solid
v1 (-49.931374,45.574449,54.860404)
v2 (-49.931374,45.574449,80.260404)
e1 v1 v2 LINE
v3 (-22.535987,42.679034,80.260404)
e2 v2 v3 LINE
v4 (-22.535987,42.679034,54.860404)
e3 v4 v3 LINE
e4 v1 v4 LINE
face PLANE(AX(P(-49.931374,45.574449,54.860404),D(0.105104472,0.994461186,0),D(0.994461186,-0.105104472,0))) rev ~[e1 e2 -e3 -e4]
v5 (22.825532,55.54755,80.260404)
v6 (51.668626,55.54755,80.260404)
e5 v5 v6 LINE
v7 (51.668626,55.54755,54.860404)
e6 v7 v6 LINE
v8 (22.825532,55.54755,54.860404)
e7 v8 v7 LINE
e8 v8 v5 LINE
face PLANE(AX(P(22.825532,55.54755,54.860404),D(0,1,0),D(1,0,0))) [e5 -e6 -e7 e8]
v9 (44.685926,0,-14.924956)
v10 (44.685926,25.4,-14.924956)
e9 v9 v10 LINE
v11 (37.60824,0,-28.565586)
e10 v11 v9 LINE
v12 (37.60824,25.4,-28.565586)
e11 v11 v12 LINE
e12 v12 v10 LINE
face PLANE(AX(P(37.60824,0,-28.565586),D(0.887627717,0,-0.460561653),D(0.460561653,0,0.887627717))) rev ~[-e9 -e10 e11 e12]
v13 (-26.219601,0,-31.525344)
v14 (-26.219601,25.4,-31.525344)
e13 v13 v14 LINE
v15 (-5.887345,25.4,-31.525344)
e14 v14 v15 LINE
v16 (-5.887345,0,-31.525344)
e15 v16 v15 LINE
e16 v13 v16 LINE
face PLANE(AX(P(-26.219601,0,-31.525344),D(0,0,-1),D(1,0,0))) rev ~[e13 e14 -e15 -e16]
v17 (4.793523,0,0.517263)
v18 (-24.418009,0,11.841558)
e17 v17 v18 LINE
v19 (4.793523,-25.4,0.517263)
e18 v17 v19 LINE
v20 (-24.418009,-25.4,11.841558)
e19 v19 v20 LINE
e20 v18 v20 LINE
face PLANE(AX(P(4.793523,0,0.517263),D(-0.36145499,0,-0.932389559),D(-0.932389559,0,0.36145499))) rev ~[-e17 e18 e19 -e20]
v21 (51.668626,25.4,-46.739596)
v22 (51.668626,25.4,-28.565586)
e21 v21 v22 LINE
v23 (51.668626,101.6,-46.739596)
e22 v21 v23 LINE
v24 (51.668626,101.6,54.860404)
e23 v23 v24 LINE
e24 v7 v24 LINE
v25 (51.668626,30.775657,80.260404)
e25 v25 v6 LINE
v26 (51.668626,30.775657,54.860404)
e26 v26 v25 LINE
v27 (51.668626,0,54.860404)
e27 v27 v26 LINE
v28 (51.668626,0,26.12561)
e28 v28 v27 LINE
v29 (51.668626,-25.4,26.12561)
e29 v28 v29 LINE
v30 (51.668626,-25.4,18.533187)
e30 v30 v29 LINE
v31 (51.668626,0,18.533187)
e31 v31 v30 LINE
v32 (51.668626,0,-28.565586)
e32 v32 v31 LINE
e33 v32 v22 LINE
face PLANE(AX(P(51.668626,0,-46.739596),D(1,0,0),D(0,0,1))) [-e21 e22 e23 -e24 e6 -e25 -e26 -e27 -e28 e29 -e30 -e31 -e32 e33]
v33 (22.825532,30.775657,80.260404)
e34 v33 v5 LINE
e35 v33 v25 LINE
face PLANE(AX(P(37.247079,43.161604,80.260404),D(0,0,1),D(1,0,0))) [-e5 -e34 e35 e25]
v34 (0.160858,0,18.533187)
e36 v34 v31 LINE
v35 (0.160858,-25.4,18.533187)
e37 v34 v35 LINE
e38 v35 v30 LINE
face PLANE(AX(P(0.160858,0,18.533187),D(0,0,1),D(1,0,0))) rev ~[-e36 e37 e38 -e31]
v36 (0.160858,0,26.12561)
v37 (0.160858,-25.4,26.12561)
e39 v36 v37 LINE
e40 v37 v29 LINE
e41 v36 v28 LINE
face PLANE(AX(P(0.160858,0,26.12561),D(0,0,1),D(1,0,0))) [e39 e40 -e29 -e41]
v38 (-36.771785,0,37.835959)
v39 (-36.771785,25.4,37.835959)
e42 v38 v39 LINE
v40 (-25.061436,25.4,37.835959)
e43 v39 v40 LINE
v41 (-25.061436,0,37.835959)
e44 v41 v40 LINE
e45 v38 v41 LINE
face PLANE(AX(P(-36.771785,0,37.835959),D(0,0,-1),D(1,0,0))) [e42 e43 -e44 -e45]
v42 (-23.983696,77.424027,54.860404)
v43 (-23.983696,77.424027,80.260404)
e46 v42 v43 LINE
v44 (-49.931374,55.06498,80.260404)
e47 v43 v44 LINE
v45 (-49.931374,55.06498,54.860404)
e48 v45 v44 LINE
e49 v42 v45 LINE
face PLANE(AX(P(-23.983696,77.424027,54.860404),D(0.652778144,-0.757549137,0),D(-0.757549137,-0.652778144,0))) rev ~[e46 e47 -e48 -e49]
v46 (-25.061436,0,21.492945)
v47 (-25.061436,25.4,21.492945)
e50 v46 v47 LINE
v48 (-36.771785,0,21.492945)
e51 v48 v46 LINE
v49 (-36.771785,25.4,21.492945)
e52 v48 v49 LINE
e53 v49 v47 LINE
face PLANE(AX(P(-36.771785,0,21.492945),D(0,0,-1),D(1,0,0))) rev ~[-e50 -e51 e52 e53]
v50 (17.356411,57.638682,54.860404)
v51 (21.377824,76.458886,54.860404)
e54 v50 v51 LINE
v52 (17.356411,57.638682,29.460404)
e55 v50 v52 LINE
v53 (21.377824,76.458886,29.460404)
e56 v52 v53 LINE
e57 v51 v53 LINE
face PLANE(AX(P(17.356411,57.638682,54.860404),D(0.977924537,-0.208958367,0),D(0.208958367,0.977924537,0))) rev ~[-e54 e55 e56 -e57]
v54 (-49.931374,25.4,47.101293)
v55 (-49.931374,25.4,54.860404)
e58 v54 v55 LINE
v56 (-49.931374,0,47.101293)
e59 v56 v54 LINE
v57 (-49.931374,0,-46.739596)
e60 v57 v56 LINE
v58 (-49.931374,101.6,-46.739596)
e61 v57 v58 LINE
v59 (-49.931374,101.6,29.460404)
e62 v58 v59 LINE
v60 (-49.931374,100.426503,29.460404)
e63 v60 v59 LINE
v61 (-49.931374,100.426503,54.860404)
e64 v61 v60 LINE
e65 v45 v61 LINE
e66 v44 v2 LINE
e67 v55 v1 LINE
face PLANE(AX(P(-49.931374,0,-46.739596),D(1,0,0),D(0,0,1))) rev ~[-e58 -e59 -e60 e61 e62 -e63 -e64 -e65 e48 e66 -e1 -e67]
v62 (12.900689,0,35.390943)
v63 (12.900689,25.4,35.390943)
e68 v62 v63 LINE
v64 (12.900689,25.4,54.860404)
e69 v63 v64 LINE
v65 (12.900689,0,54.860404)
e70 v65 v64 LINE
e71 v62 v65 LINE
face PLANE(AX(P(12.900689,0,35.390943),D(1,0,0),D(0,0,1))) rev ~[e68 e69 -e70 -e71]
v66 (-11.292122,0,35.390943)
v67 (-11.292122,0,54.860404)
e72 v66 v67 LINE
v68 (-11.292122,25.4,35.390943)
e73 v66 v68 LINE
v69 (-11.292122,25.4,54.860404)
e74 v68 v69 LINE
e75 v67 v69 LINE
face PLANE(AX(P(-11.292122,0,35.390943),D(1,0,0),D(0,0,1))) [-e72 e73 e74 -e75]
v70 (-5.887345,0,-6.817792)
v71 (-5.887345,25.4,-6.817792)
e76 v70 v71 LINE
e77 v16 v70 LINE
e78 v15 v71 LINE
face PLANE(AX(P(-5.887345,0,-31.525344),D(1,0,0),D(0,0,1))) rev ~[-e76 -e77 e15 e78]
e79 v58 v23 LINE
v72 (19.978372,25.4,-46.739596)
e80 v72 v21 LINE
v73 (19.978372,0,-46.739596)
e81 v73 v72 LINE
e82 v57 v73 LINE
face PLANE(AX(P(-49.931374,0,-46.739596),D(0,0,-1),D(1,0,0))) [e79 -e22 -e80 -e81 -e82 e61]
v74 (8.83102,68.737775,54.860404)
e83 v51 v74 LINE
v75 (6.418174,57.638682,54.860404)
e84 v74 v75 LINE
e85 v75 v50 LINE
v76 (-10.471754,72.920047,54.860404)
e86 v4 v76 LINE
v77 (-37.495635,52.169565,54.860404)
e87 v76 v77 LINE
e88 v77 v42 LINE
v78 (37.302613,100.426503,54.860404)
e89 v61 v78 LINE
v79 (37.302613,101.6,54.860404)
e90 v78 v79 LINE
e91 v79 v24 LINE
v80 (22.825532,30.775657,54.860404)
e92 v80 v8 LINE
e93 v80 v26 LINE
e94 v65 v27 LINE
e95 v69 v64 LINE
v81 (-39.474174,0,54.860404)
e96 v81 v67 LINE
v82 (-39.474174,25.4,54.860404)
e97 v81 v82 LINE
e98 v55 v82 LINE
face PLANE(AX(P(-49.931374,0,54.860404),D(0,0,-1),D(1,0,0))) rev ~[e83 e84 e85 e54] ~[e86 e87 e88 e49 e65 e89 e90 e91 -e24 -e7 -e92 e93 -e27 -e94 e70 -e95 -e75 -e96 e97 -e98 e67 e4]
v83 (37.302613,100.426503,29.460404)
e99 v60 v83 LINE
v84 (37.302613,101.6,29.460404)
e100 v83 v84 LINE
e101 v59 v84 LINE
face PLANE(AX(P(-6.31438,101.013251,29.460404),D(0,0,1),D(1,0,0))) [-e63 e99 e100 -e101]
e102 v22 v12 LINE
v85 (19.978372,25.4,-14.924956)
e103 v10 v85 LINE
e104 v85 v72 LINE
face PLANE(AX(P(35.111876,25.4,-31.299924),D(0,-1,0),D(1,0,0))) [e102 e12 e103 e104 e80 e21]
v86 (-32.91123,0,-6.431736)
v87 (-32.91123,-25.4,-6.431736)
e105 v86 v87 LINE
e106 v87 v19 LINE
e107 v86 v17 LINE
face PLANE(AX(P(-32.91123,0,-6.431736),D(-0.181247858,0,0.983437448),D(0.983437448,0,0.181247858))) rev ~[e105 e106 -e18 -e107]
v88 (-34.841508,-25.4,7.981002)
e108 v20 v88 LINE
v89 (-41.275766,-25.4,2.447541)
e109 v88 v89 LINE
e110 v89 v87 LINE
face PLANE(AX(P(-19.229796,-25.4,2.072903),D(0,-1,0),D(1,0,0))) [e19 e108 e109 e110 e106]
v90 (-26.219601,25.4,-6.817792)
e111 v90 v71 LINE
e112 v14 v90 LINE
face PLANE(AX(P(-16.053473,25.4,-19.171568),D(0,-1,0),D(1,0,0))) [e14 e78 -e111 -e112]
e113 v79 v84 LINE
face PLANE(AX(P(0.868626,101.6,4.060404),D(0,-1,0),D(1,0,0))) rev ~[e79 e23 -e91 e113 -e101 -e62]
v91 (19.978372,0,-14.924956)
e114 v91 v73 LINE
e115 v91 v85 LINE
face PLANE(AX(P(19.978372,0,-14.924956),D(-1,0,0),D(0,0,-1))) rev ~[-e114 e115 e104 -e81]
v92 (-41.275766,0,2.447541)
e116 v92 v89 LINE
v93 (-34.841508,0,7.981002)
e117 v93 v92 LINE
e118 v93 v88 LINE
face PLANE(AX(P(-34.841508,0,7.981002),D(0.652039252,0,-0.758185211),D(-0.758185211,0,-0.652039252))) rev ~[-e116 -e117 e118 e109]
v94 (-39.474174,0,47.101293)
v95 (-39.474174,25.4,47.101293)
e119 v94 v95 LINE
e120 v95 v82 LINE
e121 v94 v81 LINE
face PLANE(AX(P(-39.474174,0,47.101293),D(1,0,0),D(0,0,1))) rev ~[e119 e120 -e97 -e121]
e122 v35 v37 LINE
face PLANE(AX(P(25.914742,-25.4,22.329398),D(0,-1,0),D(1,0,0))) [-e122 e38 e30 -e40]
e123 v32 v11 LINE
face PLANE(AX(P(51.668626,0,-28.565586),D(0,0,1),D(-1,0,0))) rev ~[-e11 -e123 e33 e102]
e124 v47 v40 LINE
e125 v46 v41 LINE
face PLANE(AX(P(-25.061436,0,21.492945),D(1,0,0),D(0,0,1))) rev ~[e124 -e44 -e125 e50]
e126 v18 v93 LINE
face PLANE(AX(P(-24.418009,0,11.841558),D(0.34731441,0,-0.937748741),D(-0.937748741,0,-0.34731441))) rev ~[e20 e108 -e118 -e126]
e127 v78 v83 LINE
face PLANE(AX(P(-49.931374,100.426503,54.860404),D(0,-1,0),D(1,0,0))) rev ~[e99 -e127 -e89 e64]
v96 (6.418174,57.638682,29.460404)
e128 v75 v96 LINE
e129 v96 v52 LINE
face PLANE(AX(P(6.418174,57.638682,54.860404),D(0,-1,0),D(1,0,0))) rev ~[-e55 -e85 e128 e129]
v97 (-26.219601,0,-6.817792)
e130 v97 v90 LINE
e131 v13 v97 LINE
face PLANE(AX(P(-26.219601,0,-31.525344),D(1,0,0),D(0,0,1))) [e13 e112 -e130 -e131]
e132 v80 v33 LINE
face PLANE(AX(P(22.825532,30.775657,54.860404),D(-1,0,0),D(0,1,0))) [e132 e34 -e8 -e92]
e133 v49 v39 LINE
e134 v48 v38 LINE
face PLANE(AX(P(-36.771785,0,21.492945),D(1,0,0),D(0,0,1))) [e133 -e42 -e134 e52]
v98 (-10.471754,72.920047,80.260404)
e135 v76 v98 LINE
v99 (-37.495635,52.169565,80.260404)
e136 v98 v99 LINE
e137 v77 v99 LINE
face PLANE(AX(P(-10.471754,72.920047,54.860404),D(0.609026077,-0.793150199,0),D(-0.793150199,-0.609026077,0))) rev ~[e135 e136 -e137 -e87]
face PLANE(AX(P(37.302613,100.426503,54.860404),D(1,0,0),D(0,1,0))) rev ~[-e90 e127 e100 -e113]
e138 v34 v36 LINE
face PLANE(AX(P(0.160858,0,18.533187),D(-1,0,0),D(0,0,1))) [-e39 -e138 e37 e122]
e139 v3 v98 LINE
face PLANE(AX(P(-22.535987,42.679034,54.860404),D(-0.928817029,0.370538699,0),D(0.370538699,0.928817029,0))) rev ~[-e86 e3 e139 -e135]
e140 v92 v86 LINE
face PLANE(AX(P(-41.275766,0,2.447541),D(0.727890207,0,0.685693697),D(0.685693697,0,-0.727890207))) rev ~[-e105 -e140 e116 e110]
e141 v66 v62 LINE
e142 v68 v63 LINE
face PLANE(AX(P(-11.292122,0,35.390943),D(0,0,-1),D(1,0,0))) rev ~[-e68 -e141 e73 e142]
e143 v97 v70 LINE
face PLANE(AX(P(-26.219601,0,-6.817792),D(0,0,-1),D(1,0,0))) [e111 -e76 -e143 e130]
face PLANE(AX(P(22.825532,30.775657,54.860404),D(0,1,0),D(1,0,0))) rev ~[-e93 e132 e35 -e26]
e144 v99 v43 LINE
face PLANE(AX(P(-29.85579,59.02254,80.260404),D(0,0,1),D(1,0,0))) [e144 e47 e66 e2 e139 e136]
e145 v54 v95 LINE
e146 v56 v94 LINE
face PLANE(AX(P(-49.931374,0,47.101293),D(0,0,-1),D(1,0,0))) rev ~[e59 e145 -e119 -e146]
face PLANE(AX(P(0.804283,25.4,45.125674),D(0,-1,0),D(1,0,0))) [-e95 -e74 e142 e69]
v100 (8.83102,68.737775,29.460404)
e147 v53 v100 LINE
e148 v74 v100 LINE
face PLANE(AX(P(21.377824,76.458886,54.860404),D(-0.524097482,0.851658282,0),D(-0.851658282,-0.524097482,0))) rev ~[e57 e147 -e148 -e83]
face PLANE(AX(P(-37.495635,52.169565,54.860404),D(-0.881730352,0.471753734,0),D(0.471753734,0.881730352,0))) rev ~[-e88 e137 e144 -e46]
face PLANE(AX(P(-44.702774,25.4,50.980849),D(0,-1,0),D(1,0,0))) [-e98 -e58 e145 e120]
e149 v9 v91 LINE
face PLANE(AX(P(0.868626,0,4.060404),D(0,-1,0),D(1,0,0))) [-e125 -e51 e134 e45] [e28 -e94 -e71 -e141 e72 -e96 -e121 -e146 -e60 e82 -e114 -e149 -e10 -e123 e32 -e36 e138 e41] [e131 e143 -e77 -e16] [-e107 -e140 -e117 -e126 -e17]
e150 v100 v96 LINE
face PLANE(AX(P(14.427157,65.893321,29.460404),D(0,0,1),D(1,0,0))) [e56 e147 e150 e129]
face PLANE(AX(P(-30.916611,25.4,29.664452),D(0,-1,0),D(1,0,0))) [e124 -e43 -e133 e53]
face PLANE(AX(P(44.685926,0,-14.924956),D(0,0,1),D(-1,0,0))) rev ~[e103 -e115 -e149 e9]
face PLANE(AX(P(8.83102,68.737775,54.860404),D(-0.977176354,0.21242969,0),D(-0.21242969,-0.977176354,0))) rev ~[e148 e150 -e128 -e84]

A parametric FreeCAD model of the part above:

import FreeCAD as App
import Part
import Sketcher
from FreeCAD import Vector
Q = App.Units.Quantity


def add_polygon(sketch, points):
    """Adds a closed chain of lines whose ends are joined by coincident constraints."""
    first, n = sketch.GeometryCount, len(points)
    for a, b in zip(points, points[1:] + points[:1]):
        sketch.addGeometry(Part.LineSegment(App.Vector(*a, 0), App.Vector(*b, 0)), False)
    for i in range(n):
        sketch.addConstraint(Sketcher.Constraint("Coincident", first + i, 2, first + (i + 1) % n, 1))

doc = App.newDocument("Part")
body = doc.addObject("PartDesign::Body", "Body")

# Sketch on XZ plane
sketch1 = body.newObject("Sketcher::SketchObject", "Sketch")
sketch1.AttachmentSupport = (doc.getObject("XZ_Plane"), [""])
sketch1.MapMode = "FlatFace"
add_polygon(sketch1, [(-50, 55), (-50, -47), (52, -47), (52, 55)])  # lines 0-3
sketch1.addConstraint([
    Sketcher.Constraint("Vertical", 0),
    Sketcher.Constraint("Horizontal", 1),
    Sketcher.Constraint("Vertical", 2),
    Sketcher.Constraint("Horizontal", 3),
    Sketcher.Constraint("Equal", 3, 0),
    Sketcher.Constraint("DistanceX", 1, 1, 1, 2, Q("4 in")),
    Sketcher.Constraint("DistanceX", 0, 2, -1, 1, Q("49.931374 mm")),
    Sketcher.Constraint("DistanceY", 0, 2, -1, 1, Q("46.739596 mm")),
])
pad1 = body.newObject("PartDesign::Pad", "Pad")
pad1.Profile = sketch1
pad1.Length = Q("4 in")
pad1.Reversed = True

# Sketch on XZ plane
sketch2 = body.newObject("Sketcher::SketchObject", "Sketch001")
sketch2.AttachmentSupport = (doc.getObject("XZ_Plane"), [""])
sketch2.MapMode = "FlatFace"
add_polygon(sketch2, [(-50, 55), (-50, 47), (-39, 47), (-39, 55)])  # lines 0-3
add_polygon(sketch2, [(-11, 55), (-11, 35), (13, 35), (13, 55)])  # lines 4-7
add_polygon(sketch2, [(-37, 38), (-37, 21), (-25, 21), (-25, 38)])  # lines 8-11
add_polygon(sketch2, [(-26, -7), (-26, -32), (-6, -32), (-6, -7)])  # lines 12-15
add_polygon(sketch2, [(20, -15), (20, -47), (52, -47), (52, -29), (38, -29), (45, -15)])  # lines 16-21
sketch2.addConstraint([
    Sketcher.Constraint("Vertical", 0),
    Sketcher.Constraint("Horizontal", 1),
    Sketcher.Constraint("Vertical", 2),
    Sketcher.Constraint("Horizontal", 3),
    Sketcher.Constraint("Vertical", 4),
    Sketcher.Constraint("Horizontal", 5),
    Sketcher.Constraint("Vertical", 6),
    Sketcher.Constraint("Horizontal", 7),
    Sketcher.Constraint("Vertical", 8),
    Sketcher.Constraint("Horizontal", 9),
    Sketcher.Constraint("Vertical", 10),
    Sketcher.Constraint("Horizontal", 11),
    Sketcher.Constraint("Vertical", 12),
    Sketcher.Constraint("Horizontal", 13),
    Sketcher.Constraint("Vertical", 14),
    Sketcher.Constraint("Horizontal", 15),
    Sketcher.Constraint("Vertical", 16),
    Sketcher.Constraint("Horizontal", 17),
    Sketcher.Constraint("Vertical", 18),
    Sketcher.Constraint("Horizontal", 19),
    Sketcher.Constraint("Horizontal", 21),
    Sketcher.Constraint("Horizontal", 3, 2, 6, 2),
    Sketcher.Constraint("Equal", 21, 12),
    Sketcher.Constraint("DistanceX", 1, 1, 1, 2, Q("10.4572 mm")),
    Sketcher.Constraint("DistanceX", 5, 1, 5, 2, Q("24.192811 mm")),
    Sketcher.Constraint("DistanceX", 9, 1, 9, 2, Q("11.710349 mm")),
    Sketcher.Constraint("DistanceY", 0, 2, 0, 1, Q("7.759112 mm")),
    Sketcher.Constraint("DistanceY", 4, 2, 4, 1, Q("19.469461 mm")),
    Sketcher.Constraint("DistanceY", 16, 2, 16, 1, Q("31.814639 mm")),
    Sketcher.Constraint("DistanceY", 18, 1, 18, 2, Q("18.17401 mm")),
    Sketcher.Constraint("DistanceX", 12, 2, -1, 1, Q("26.219601 mm")),
    Sketcher.Constraint("DistanceY", 8, 2, 4, 2, Q("13.897998 mm")),
    Sketcher.Constraint("DistanceX", 20, 2, 18, 2, Q("6.9827 mm")),
    Sketcher.Constraint("Distance", 20, Q("15.367511 mm")),
    Sketcher.Constraint("DistanceX", 13, 1, 13, 2, Q("20.332256 mm")),
    Sketcher.Constraint("DistanceX", 17, 1, 17, 2, Q("31.690254 mm")),
    Sketcher.Constraint("DistanceY", 8, 2, 8, 1, Q("16.343014 mm")),
    Sketcher.Constraint("DistanceX", -1, 1, 5, 2, Q("12.900689 mm")),
    Sketcher.Constraint("DistanceY", -1, 1, 10, 2, Q("37.835959 mm")),
    Sketcher.Constraint("DistanceY", 14, 2, -1, 1, Q("6.817792 mm")),
    Sketcher.Constraint("DistanceX", -1, 1, 19, 2, Q("37.60824 mm")),
    Sketcher.Constraint("DistanceX", 0, 2, 4, 2, Q("38.639252 mm")),
    Sketcher.Constraint("DistanceX", 1, 2, 8, 2, Q("2.702389 mm")),
    Sketcher.Constraint("DistanceY", 16, 2, 9, 2, Q("68.232541 mm")),
])
pocket1 = body.newObject("PartDesign::Pocket", "Pocket")
pocket1.Profile = sketch2
pocket1.Length = Q("1 in")

# Sketch on XZ plane
sketch3 = body.newObject("Sketcher::SketchObject", "Sketch002")
sketch3.AttachmentSupport = (doc.getObject("XZ_Plane"), [""])
sketch3.MapMode = "FlatFace"
add_polygon(sketch3, [(-24, 12), (-35, 8), (-41, 2), (-33, -6), (5, 1)])  # lines 0-4
add_polygon(sketch3, [(0, 26), (0, 19), (52, 19), (52, 26)])  # lines 5-8
sketch3.addConstraint([
    Sketcher.Constraint("Vertical", 5),
    Sketcher.Constraint("Horizontal", 6),
    Sketcher.Constraint("Vertical", 7),
    Sketcher.Constraint("Horizontal", 8),
    Sketcher.Constraint("DistanceY", 2, 2, 3, 2, Q("6.948999 mm")),
    Sketcher.Constraint("DistanceX", 0, 2, 4, 2, Q("10.423498 mm")),
    Sketcher.Constraint("Distance", 0, Q("11.115449 mm")),
    Sketcher.Constraint("Distance", 4, Q("31.329751 mm")),
    Sketcher.Constraint("DistanceX", 6, 1, 6, 2, Q("51.507768 mm")),
    Sketcher.Constraint("DistanceY", 5, 2, 5, 1, Q("7.592423 mm")),
    Sketcher.Constraint("DistanceY", -1, 1, 1, 2, Q("2.447541 mm")),
    Sketcher.Constraint("DistanceX", 2, 2, -1, 1, Q("32.91123 mm")),
    Sketcher.Constraint("DistanceX", 4, 2, -1, 1, Q("24.418009 mm")),
    Sketcher.Constraint("DistanceY", -1, 1, 7, 2, Q("26.12561 mm")),
    Sketcher.Constraint("DistanceX", 1, 2, 0, 2, Q("6.434258 mm")),
    Sketcher.Constraint("DistanceY", 1, 2, 0, 2, Q("5.533462 mm")),
    Sketcher.Constraint("DistanceX", 0, 2, 3, 2, Q("39.635031 mm")),
    Sketcher.Constraint("DistanceX", -1, 1, 5, 2, Q("0.160858 mm")),
])
pad2 = body.newObject("PartDesign::Pad", "Pad001")
pad2.Profile = sketch3
pad2.Length = Q("1 in")

# Sketch on XY plane
sketch4 = body.newObject("Sketcher::SketchObject", "Sketch003")
sketch4.AttachmentSupport = (doc.getObject("XY_Plane"), [""])
sketch4.MapMode = "FlatFace"
sketch4.AttachmentOffset = App.Placement(Vector(0, 0, 54.860404), App.Rotation())
add_polygon(sketch4, [(23, 56), (23, 31), (52, 31), (52, 56)])  # lines 0-3
add_polygon(sketch4, [(-24, 77), (-50, 55), (-50, 46), (-23, 43), (-10, 73), (-37, 52)])  # lines 4-9
sketch4.addConstraint([
    Sketcher.Constraint("Vertical", 0),
    Sketcher.Constraint("Horizontal", 1),
    Sketcher.Constraint("Vertical", 2),
    Sketcher.Constraint("Horizontal", 3),
    Sketcher.Constraint("Vertical", 5),
    Sketcher.Constraint("DistanceX", 4, 2, 2, 2, Q("4 in")),
    Sketcher.Constraint("DistanceY", 5, 2, 5, 1, Q("9.490531 mm")),
    Sketcher.Constraint("DistanceY", 5, 2, 3, 2, Q("9.973101 mm")),
    Sketcher.Constraint("Distance", 4, Q("34.252138 mm")),
    Sketcher.Constraint("Distance", 6, Q("27.54797 mm")),
    Sketcher.Constraint("Distance", 8, Q("34.071582 mm")),
    Sketcher.Constraint("DistanceX", 1, 1, 1, 2, Q("28.843094 mm")),
    Sketcher.Constraint("DistanceY", 0, 2, 0, 1, Q("24.771893 mm")),
    Sketcher.Constraint("DistanceX", -1, 1, 0, 2, Q("22.825532 mm")),
    Sketcher.Constraint("DistanceY", -1, 1, 2, 2, Q("55.54755 mm")),
    Sketcher.Constraint("DistanceX", 6, 2, 0, 2, Q("45.361519 mm")),
    Sketcher.Constraint("DistanceX", 4, 2, 7, 2, Q("39.45962 mm")),
    Sketcher.Constraint("DistanceY", 0, 2, 7, 2, Q("42.14439 mm")),
    Sketcher.Constraint("DistanceX", 4, 2, 8, 2, Q("12.435739 mm")),
    Sketcher.Constraint("DistanceY", 7, 2, 9, 2, Q("4.50398 mm")),
])
pad3 = body.newObject("PartDesign::Pad", "Pad002")
pad3.Profile = sketch4
pad3.Length = Q("1 in")

# Sketch on XY plane
sketch5 = body.newObject("Sketcher::SketchObject", "Sketch004")
sketch5.AttachmentSupport = (doc.getObject("XY_Plane"), [""])
sketch5.MapMode = "FlatFace"
sketch5.AttachmentOffset = App.Placement(Vector(0, 0, 54.860404), App.Rotation())
add_polygon(sketch5, [(-49.9, 101.6), (-49.9, 100.4), (37.3, 100.4), (37.3, 101.6)])  # lines 0-3
add_polygon(sketch5, [(17.4, 57.6), (21.4, 76.5), (8.8, 68.7), (6.4, 57.6)])  # lines 4-7
sketch5.addConstraint([
    Sketcher.Constraint("Vertical", 0),
    Sketcher.Constraint("Horizontal", 1),
    Sketcher.Constraint("Vertical", 2),
    Sketcher.Constraint("Horizontal", 3),
    Sketcher.Constraint("Horizontal", 7),
    Sketcher.Constraint("DistanceY", -1, 1, 2, 2, Q("4 in")),
    Sketcher.Constraint("DistanceX", 0, 2, 4, 2, Q("71.309198 mm")),
    Sketcher.Constraint("Distance", 6, Q("11.358331 mm")),
    Sketcher.Constraint("DistanceX", 1, 1, 1, 2, Q("87.233987 mm")),
    Sketcher.Constraint("DistanceX", 7, 1, 7, 2, Q("10.938237 mm")),
    Sketcher.Constraint("DistanceY", 0, 2, 0, 1, Q("1.173497 mm")),
    Sketcher.Constraint("DistanceX", -1, 1, 5, 2, Q("8.83102 mm")),
    Sketcher.Constraint("DistanceX", -1, 1, 7, 2, Q("17.356411 mm")),
    Sketcher.Constraint("DistanceY", 5, 2, 4, 2, Q("7.721111 mm")),
    Sketcher.Constraint("DistanceX", 6, 2, 4, 2, Q("14.959651 mm")),
    Sketcher.Constraint("DistanceY", 6, 2, 1, 2, Q("42.78782 mm")),
])
pocket2 = body.newObject("PartDesign::Pocket", "Pocket001")
pocket2.Profile = sketch5
pocket2.Length = Q("1 in")

doc.recompute()
